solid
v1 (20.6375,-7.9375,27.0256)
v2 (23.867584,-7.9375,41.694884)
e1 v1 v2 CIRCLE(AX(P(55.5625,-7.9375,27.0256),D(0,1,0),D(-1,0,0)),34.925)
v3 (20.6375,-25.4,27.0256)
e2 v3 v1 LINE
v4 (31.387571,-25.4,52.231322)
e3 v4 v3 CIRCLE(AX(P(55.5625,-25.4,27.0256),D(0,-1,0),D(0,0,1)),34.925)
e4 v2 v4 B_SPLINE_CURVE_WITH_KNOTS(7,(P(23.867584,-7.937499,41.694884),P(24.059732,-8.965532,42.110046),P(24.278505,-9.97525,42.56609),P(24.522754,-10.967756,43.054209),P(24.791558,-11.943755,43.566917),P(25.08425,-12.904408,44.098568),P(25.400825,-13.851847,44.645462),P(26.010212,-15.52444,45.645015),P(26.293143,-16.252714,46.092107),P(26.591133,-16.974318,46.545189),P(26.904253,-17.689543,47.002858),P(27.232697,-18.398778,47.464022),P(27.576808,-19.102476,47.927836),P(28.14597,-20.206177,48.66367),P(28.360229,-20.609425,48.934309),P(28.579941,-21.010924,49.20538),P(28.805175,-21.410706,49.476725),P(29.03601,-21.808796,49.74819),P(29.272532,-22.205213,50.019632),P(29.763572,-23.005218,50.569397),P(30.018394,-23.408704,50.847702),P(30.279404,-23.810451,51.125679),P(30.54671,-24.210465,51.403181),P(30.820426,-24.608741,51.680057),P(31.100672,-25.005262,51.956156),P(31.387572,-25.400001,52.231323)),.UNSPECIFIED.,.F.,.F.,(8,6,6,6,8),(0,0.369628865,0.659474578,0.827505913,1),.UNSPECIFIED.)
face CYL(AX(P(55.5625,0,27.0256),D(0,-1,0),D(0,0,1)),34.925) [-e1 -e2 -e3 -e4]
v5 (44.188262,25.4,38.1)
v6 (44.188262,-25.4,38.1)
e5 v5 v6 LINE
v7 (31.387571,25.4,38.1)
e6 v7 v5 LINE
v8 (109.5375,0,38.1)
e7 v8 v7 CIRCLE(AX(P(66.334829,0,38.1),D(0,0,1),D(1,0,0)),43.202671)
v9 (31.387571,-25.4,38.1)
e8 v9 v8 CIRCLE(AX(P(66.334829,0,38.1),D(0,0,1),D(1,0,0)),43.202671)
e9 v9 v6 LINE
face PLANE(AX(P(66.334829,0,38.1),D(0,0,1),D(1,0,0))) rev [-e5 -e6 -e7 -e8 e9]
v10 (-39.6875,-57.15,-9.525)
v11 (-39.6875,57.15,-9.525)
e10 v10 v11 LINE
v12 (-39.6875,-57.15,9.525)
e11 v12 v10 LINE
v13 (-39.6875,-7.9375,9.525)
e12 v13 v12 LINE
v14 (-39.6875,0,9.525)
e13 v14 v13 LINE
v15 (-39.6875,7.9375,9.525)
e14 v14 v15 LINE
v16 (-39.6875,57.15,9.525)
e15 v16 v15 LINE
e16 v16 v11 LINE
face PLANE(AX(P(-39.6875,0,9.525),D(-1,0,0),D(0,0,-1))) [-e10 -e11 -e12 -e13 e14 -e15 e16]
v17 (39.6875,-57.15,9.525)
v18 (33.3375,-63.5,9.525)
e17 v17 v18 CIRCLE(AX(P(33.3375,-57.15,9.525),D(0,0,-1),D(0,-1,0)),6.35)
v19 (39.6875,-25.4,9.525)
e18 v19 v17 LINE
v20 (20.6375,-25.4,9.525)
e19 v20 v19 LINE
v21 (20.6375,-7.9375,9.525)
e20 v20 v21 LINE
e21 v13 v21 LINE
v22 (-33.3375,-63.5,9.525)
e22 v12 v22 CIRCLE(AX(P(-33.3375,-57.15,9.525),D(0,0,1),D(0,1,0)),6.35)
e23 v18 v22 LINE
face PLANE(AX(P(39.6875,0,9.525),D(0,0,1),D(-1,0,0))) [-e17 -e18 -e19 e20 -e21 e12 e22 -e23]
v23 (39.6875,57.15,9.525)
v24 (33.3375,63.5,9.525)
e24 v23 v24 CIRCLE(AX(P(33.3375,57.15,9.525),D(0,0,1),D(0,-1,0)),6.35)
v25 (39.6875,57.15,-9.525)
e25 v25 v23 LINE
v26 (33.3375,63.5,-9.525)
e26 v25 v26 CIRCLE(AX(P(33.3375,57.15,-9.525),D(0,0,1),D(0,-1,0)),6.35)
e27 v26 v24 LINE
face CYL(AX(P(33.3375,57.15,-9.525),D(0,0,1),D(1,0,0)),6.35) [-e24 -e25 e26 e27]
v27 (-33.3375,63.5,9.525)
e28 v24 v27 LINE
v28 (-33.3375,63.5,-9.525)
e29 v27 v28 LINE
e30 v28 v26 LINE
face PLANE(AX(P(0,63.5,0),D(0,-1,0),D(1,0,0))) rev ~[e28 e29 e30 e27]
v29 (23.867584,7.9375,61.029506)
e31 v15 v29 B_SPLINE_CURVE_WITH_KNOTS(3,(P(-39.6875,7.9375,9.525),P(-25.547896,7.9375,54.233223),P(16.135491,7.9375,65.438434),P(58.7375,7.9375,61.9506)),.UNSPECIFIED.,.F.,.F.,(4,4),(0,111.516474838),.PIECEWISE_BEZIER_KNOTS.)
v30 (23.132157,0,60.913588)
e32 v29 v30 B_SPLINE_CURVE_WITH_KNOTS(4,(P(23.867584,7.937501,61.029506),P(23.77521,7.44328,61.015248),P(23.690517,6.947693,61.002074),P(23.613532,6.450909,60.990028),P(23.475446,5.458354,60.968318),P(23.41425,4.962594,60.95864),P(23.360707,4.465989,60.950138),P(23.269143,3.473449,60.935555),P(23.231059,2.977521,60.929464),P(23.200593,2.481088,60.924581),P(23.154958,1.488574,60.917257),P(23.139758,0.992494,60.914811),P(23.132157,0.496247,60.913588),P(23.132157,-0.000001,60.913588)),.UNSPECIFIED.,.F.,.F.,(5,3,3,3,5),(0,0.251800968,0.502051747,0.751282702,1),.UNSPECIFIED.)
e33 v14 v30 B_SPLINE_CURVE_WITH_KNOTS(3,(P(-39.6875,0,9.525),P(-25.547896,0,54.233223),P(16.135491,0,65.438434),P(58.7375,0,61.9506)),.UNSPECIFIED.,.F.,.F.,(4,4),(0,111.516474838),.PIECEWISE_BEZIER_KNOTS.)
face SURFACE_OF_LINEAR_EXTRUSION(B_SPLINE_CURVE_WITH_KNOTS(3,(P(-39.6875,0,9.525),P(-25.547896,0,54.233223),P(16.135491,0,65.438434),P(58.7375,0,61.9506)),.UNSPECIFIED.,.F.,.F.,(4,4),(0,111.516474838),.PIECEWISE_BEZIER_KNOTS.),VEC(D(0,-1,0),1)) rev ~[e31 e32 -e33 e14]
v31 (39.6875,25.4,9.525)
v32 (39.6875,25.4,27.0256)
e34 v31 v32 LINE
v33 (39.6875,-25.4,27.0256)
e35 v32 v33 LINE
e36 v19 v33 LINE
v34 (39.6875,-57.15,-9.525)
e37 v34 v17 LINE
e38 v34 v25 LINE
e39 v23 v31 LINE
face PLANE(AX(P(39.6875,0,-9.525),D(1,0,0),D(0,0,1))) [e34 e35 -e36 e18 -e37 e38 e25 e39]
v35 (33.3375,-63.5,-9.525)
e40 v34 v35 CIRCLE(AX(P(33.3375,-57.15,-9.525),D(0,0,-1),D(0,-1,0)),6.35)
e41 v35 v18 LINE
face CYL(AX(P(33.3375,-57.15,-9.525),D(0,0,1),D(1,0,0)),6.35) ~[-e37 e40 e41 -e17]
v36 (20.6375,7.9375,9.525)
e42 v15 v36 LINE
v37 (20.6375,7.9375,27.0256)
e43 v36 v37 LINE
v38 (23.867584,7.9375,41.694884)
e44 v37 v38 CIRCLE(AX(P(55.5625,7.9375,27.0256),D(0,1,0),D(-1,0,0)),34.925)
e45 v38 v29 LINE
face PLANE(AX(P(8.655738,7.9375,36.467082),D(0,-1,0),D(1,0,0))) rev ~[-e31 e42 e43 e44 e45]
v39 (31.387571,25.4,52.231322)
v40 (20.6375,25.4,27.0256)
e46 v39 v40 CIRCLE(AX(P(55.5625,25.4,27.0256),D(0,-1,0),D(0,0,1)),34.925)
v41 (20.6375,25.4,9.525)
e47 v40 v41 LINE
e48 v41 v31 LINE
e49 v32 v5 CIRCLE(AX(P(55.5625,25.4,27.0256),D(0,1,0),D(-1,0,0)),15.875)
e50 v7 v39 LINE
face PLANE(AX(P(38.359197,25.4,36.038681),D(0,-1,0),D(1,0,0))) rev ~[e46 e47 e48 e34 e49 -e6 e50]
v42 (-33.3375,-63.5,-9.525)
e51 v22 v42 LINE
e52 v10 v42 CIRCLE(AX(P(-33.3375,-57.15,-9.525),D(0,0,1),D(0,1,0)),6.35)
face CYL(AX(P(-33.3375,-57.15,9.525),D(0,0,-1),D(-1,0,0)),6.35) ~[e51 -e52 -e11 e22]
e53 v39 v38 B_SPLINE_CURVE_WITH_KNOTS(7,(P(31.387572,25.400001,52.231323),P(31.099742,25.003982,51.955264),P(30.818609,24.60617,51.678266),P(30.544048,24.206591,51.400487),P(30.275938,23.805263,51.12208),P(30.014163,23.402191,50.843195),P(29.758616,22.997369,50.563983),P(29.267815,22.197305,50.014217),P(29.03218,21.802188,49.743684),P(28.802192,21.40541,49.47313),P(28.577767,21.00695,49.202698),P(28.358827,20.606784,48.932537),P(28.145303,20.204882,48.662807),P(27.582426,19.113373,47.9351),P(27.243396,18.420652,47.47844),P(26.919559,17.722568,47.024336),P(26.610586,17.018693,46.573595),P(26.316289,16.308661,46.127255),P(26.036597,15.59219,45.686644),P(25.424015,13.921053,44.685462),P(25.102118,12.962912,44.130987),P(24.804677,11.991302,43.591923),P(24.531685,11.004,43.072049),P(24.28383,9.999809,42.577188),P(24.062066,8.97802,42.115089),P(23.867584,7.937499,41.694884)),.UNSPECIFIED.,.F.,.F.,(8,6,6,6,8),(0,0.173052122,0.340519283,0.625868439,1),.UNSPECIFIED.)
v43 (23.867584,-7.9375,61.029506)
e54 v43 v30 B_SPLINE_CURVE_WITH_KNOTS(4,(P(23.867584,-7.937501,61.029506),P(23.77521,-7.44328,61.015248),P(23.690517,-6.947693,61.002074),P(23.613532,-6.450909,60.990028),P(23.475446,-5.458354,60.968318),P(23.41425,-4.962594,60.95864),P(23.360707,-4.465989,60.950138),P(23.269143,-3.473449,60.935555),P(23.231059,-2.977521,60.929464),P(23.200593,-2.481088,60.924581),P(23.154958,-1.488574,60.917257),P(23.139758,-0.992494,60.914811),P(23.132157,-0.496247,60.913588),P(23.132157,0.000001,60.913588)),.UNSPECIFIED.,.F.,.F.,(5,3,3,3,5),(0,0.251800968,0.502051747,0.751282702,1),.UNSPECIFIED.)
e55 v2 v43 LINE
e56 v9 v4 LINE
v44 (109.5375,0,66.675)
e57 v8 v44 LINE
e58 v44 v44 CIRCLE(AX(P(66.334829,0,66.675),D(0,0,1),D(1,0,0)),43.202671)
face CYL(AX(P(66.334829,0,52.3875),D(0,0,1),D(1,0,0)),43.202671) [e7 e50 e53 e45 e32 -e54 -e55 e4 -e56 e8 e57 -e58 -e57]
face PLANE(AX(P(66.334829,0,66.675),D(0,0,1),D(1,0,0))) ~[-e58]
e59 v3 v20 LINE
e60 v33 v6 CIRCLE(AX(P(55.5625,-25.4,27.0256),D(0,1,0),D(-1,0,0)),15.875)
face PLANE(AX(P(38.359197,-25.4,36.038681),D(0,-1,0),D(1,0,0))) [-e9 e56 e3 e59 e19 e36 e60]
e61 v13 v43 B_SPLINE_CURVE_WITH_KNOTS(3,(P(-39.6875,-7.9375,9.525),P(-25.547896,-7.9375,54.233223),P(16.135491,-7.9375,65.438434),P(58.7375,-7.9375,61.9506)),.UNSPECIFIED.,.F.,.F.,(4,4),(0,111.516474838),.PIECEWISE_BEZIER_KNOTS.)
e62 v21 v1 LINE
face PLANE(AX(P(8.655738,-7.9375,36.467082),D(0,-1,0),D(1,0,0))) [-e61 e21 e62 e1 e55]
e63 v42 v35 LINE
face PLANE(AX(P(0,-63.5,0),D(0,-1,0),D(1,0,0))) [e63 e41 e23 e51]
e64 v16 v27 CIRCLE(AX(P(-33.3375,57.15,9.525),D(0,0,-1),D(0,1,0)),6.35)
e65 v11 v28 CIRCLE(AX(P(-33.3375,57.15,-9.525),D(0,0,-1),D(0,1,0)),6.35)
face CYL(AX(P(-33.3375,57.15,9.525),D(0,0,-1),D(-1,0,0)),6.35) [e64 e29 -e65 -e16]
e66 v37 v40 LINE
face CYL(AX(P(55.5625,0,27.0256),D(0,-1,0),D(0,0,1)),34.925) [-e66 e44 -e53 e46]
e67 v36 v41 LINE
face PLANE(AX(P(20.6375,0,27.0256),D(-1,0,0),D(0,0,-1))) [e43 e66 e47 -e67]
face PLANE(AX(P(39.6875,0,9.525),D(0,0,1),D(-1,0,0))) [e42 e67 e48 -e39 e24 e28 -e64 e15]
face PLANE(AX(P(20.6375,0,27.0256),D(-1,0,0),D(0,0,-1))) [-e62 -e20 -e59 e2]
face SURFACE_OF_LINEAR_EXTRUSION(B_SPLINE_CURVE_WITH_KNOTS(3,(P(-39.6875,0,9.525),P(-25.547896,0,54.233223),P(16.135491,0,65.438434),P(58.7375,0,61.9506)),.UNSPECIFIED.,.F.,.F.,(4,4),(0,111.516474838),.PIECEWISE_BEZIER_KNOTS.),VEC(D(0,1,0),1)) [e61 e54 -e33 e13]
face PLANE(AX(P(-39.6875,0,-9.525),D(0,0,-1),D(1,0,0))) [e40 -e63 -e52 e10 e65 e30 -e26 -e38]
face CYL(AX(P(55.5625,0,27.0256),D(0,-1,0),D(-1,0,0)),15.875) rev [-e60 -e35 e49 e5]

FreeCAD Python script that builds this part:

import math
import FreeCAD as App
import Part
import Sketcher
Q = App.Units.Quantity


def edges_at(feature, points):
    """Names of the edges that pass closest to the given points."""
    edges = feature.Shape.Edges
    near = lambda p: min(range(len(edges)), key=lambda i: edges[i].distToShape(Part.Vertex(*p))[0])
    return sorted({f"Edge{near(p) + 1}" for p in points})

doc = App.newDocument("Part")
body = doc.addObject("PartDesign::Body", "Body")

# Sketch on XZ plane
sketch1 = body.newObject("Sketcher::SketchObject", "Sketch")
sketch1.AttachmentSupport = (doc.getObject("XZ_Plane"), [""])
sketch1.MapMode = "FlatFace"
sketch1.addGeometry(Part.LineSegment(App.Vector(40, -10, 0), App.Vector(40, 10, 0)), False)
sketch1.addGeometry(Part.LineSegment(App.Vector(40, 10, 0), App.Vector(-40, 10, 0)), False)
sketch1.addGeometry(Part.LineSegment(App.Vector(-40, 10, 0), App.Vector(-40, -10, 0)), False)
sketch1.addGeometry(Part.LineSegment(App.Vector(-40, -10, 0), App.Vector(40, -10, 0)), False)
sketch1.addConstraint(Sketcher.Constraint("Coincident", 0, 2, 1, 1))
sketch1.addConstraint(Sketcher.Constraint("Coincident", 1, 2, 2, 1))
sketch1.addConstraint(Sketcher.Constraint("Coincident", 2, 2, 3, 1))
sketch1.addConstraint(Sketcher.Constraint("Coincident", 3, 2, 0, 1))
sketch1.addConstraint(Sketcher.Constraint("Vertical", 0))
sketch1.addConstraint(Sketcher.Constraint("Horizontal", 1))
sketch1.addConstraint(Sketcher.Constraint("Vertical", 2))
sketch1.addConstraint(Sketcher.Constraint("Horizontal", 3))
sketch1.addConstraint(Sketcher.Constraint("Symmetric", 0, 2, 2, 2, -1, 1))
sketch1.addConstraint(Sketcher.Constraint("DistanceY", 0, 1, 0, 2, Q("0.75 in")))
sketch1.addConstraint(Sketcher.Constraint("DistanceX", 1, 2, 1, 1, Q("3.125 in")))
pad1 = body.newObject("PartDesign::Pad", "Pad")
pad1.Profile = sketch1
pad1.Length = Q("5 in")
pad1.Midplane = True

# Sketch on XZ plane
sketch2 = body.newObject("Sketcher::SketchObject", "Sketch001")
sketch2.AttachmentSupport = (doc.getObject("XZ_Plane"), [""])
sketch2.MapMode = "FlatFace"
sketch2.addGeometry(Part.LineSegment(App.Vector(20.6, 9.5, 0), App.Vector(39.7, 9.5, 0)), False)
sketch2.addGeometry(Part.LineSegment(App.Vector(39.7, 9.5, 0), App.Vector(39.7, 27, 0)), False)
sketch2.addGeometry(Part.ArcOfCircle(Part.Circle(App.Vector(55.6, 27, 0), App.Vector(0, 0, 1), 15.9), math.radians(90), math.radians(180)), False)
sketch2.addGeometry(Part.LineSegment(App.Vector(55.6, 42.9, 0), App.Vector(58.7, 42.9, 0)), False)
sketch2.addGeometry(Part.LineSegment(App.Vector(58.7, 42.9, 0), App.Vector(58.7, 38.1, 0)), False)
sketch2.addGeometry(Part.LineSegment(App.Vector(58.7, 38.1, 0), App.Vector(66.3, 38.1, 0)), False)
sketch2.addGeometry(Part.LineSegment(App.Vector(66.3, 38.1, 0), App.Vector(66.3, 66.7, 0)), False)
sketch2.addGeometry(Part.LineSegment(App.Vector(66.3, 66.7, 0), App.Vector(58.7, 66.7, 0)), False)
sketch2.addGeometry(Part.LineSegment(App.Vector(58.7, 66.7, 0), App.Vector(58.7, 62, 0)), False)
sketch2.addGeometry(Part.LineSegment(App.Vector(58.7, 62, 0), App.Vector(55.6, 62, 0)), False)
sketch2.addGeometry(Part.ArcOfCircle(Part.Circle(App.Vector(55.6, 27, 0), App.Vector(0, 0, 1), 34.9), math.radians(90), math.radians(180)), False)
sketch2.addGeometry(Part.LineSegment(App.Vector(20.6, 27, 0), App.Vector(20.6, 9.5, 0)), False)
sketch2.addConstraint(Sketcher.Constraint("Coincident", 0, 2, 1, 1))
sketch2.addConstraint(Sketcher.Constraint("Tangent", 1, 2, 2, 2))
sketch2.addConstraint(Sketcher.Constraint("Tangent", 2, 1, 3, 1))
sketch2.addConstraint(Sketcher.Constraint("Coincident", 3, 2, 4, 1))
sketch2.addConstraint(Sketcher.Constraint("Coincident", 4, 2, 5, 1))
sketch2.addConstraint(Sketcher.Constraint("Coincident", 5, 2, 6, 1))
sketch2.addConstraint(Sketcher.Constraint("Coincident", 6, 2, 7, 1))
sketch2.addConstraint(Sketcher.Constraint("Coincident", 7, 2, 8, 1))
sketch2.addConstraint(Sketcher.Constraint("Coincident", 8, 2, 9, 1))
sketch2.addConstraint(Sketcher.Constraint("Tangent", 9, 2, 10, 1))
sketch2.addConstraint(Sketcher.Constraint("Tangent", 10, 2, 11, 1))
sketch2.addConstraint(Sketcher.Constraint("Coincident", 11, 2, 0, 1))
sketch2.addConstraint(Sketcher.Constraint("Horizontal", 0))
sketch2.addConstraint(Sketcher.Constraint("Vertical", 1))
sketch2.addConstraint(Sketcher.Constraint("Horizontal", 3))
sketch2.addConstraint(Sketcher.Constraint("Vertical", 4))
sketch2.addConstraint(Sketcher.Constraint("Horizontal", 5))
sketch2.addConstraint(Sketcher.Constraint("Vertical", 6))
sketch2.addConstraint(Sketcher.Constraint("Horizontal", 7))
sketch2.addConstraint(Sketcher.Constraint("Vertical", 8))
sketch2.addConstraint(Sketcher.Constraint("Horizontal", 9))
sketch2.addConstraint(Sketcher.Constraint("Vertical", 11))
sketch2.addConstraint(Sketcher.Constraint("Coincident", 10, 3, 2, 3))
sketch2.addConstraint(Sketcher.Constraint("Vertical", 4, 2, 7, 2))
sketch2.addConstraint(Sketcher.Constraint("Radius", 2, Q("0.625 in")))
sketch2.addConstraint(Sketcher.Constraint("Radius", 10, Q("1.375 in")))
sketch2.addConstraint(Sketcher.Constraint("DistanceY", -1, 1, 4, 2, Q("1.5 in")))
sketch2.addConstraint(Sketcher.Constraint("DistanceX", 3, 1, 3, 2, Q("0.125 in")))
sketch2.addConstraint(Sketcher.Constraint("DistanceY", 1, 1, 1, 2, Q("0.689 in")))
sketch2.addConstraint(Sketcher.Constraint("DistanceY", 4, 2, 4, 1, Q("0.189 in")))
sketch2.addConstraint(Sketcher.Constraint("DistanceY", 6, 1, 6, 2, Q("1.125 in")))
sketch2.addConstraint(Sketcher.Constraint("DistanceX", -1, 1, 2, 3, Q("2.1875 in")))
sketch2.addConstraint(Sketcher.Constraint("DistanceX", 5, 1, 5, 2, 7.597329))
pad2 = body.newObject("PartDesign::Pad", "Pad001")
pad2.Profile = sketch2
pad2.Length = Q("2 in")
pad2.Midplane = True

# Sketch on XZ plane
sketch3 = body.newObject("Sketcher::SketchObject", "Sketch002")
sketch3.AttachmentSupport = (doc.getObject("XZ_Plane"), [""])
sketch3.MapMode = "FlatFace"
sketch3.addGeometry(Part.LineSegment(App.Vector(-39.6875, 9.525, 0), App.Vector(20.6375, 9.525, 0)), False)
sketch3.addGeometry(Part.LineSegment(App.Vector(20.6375, 9.525, 0), App.Vector(20.6375, 27.0256, 0)), False)
sketch3.addGeometry(Part.ArcOfCircle(Part.Circle(App.Vector(55.5625, 27.0256, 0), App.Vector(0, 0, 1), 34.925), math.radians(90), math.radians(180)), False)
sketch3.addGeometry(Part.LineSegment(App.Vector(55.5625, 61.9506, 0), App.Vector(58.7375, 61.9506, 0)), False)
sketch3.addGeometry(Part.BSplineCurve([App.Vector(-39.6875, 9.525, 0), App.Vector(-25.547896, 54.233223, 0), App.Vector(16.135491, 65.438434, 0), App.Vector(58.7375, 61.9506, 0)], [4, 4], [0, 111.516474838], False, 3, [1, 1, 1, 1], False), False)
sketch3.addConstraint(Sketcher.Constraint("Block", 4))
sketch3.addConstraint(Sketcher.Constraint("Coincident", 0, 2, 1, 1))
sketch3.addConstraint(Sketcher.Constraint("Tangent", 1, 2, 2, 2))
sketch3.addConstraint(Sketcher.Constraint("Tangent", 2, 1, 3, 1))
sketch3.addConstraint(Sketcher.Constraint("Coincident", 3, 2, 4, 2))
sketch3.addConstraint(Sketcher.Constraint("Coincident", 4, 1, 0, 1))
sketch3.addConstraint(Sketcher.Constraint("Horizontal", 0))
sketch3.addConstraint(Sketcher.Constraint("Vertical", 1))
sketch3.addConstraint(Sketcher.Constraint("Horizontal", 3))
sketch3.addConstraint(Sketcher.Constraint("Radius", 2, Q("1.375 in")))
sketch3.addConstraint(Sketcher.Constraint("DistanceX", 1, 2, 3, 2, Q("1.5 in")))
pad3 = body.newObject("PartDesign::Pad", "Pad002")
pad3.Profile = sketch3
pad3.Length = Q("0.625 in")
pad3.Midplane = True

# Sketch on XZ plane
sketch4 = body.newObject("Sketcher::SketchObject", "Sketch003")
sketch4.AttachmentSupport = (doc.getObject("XZ_Plane"), [""])
sketch4.MapMode = "FlatFace"
sketch4.addGeometry(Part.LineSegment(App.Vector(66, 67, 0), App.Vector(66, 38, 0)), False)
sketch4.addGeometry(Part.LineSegment(App.Vector(66, 38, 0), App.Vector(110, 38, 0)), False)
sketch4.addGeometry(Part.LineSegment(App.Vector(110, 38, 0), App.Vector(110, 67, 0)), False)
sketch4.addGeometry(Part.LineSegment(App.Vector(110, 67, 0), App.Vector(66, 67, 0)), False)
sketch4.addGeometry(Part.LineSegment(App.Vector(66, 38, 0), App.Vector(66, 67, 0)), True)  # axis
sketch4.addConstraint(Sketcher.Constraint("Coincident", 0, 2, 1, 1))
sketch4.addConstraint(Sketcher.Constraint("Coincident", 1, 2, 2, 1))
sketch4.addConstraint(Sketcher.Constraint("Coincident", 2, 2, 3, 1))
sketch4.addConstraint(Sketcher.Constraint("Coincident", 3, 2, 0, 1))
sketch4.addConstraint(Sketcher.Constraint("Vertical", 0))
sketch4.addConstraint(Sketcher.Constraint("Horizontal", 1))
sketch4.addConstraint(Sketcher.Constraint("Vertical", 2))
sketch4.addConstraint(Sketcher.Constraint("Horizontal", 3))
sketch4.addConstraint(Sketcher.Constraint("Vertical", 4))
sketch4.addConstraint(Sketcher.Constraint("Coincident", 4, 1, 0, 2))
sketch4.addConstraint(Sketcher.Constraint("Horizontal", 2, 2, 4, 2))
sketch4.addConstraint(Sketcher.Constraint("DistanceY", -1, 1, 0, 2, Q("1.5 in")))
sketch4.addConstraint(Sketcher.Constraint("DistanceY", 0, 2, 0, 1, Q("1.125 in")))
sketch4.addConstraint(Sketcher.Constraint("DistanceX", -1, 1, 1, 2, Q("4.3125 in")))
sketch4.addConstraint(Sketcher.Constraint("DistanceX", 1, 1, 1, 2, 43.202671))
revolution = body.newObject("PartDesign::Revolution", "Revolution")
revolution.Profile = sketch4
revolution.ReferenceAxis = (sketch4, ["Axis0"])
revolution.Angle = 360
doc.recompute()

fillet = body.newObject("PartDesign::Fillet", "Fillet")
fillet.Base = (revolution, edges_at(revolution, [
    (39.688, -63.5, 0),
    (-39.688, -63.5, 0),
    (39.688, 63.5, 0),
    (-39.688, 63.5, 0),
]))
fillet.Radius = Q("0.25 in")

doc.recompute()
